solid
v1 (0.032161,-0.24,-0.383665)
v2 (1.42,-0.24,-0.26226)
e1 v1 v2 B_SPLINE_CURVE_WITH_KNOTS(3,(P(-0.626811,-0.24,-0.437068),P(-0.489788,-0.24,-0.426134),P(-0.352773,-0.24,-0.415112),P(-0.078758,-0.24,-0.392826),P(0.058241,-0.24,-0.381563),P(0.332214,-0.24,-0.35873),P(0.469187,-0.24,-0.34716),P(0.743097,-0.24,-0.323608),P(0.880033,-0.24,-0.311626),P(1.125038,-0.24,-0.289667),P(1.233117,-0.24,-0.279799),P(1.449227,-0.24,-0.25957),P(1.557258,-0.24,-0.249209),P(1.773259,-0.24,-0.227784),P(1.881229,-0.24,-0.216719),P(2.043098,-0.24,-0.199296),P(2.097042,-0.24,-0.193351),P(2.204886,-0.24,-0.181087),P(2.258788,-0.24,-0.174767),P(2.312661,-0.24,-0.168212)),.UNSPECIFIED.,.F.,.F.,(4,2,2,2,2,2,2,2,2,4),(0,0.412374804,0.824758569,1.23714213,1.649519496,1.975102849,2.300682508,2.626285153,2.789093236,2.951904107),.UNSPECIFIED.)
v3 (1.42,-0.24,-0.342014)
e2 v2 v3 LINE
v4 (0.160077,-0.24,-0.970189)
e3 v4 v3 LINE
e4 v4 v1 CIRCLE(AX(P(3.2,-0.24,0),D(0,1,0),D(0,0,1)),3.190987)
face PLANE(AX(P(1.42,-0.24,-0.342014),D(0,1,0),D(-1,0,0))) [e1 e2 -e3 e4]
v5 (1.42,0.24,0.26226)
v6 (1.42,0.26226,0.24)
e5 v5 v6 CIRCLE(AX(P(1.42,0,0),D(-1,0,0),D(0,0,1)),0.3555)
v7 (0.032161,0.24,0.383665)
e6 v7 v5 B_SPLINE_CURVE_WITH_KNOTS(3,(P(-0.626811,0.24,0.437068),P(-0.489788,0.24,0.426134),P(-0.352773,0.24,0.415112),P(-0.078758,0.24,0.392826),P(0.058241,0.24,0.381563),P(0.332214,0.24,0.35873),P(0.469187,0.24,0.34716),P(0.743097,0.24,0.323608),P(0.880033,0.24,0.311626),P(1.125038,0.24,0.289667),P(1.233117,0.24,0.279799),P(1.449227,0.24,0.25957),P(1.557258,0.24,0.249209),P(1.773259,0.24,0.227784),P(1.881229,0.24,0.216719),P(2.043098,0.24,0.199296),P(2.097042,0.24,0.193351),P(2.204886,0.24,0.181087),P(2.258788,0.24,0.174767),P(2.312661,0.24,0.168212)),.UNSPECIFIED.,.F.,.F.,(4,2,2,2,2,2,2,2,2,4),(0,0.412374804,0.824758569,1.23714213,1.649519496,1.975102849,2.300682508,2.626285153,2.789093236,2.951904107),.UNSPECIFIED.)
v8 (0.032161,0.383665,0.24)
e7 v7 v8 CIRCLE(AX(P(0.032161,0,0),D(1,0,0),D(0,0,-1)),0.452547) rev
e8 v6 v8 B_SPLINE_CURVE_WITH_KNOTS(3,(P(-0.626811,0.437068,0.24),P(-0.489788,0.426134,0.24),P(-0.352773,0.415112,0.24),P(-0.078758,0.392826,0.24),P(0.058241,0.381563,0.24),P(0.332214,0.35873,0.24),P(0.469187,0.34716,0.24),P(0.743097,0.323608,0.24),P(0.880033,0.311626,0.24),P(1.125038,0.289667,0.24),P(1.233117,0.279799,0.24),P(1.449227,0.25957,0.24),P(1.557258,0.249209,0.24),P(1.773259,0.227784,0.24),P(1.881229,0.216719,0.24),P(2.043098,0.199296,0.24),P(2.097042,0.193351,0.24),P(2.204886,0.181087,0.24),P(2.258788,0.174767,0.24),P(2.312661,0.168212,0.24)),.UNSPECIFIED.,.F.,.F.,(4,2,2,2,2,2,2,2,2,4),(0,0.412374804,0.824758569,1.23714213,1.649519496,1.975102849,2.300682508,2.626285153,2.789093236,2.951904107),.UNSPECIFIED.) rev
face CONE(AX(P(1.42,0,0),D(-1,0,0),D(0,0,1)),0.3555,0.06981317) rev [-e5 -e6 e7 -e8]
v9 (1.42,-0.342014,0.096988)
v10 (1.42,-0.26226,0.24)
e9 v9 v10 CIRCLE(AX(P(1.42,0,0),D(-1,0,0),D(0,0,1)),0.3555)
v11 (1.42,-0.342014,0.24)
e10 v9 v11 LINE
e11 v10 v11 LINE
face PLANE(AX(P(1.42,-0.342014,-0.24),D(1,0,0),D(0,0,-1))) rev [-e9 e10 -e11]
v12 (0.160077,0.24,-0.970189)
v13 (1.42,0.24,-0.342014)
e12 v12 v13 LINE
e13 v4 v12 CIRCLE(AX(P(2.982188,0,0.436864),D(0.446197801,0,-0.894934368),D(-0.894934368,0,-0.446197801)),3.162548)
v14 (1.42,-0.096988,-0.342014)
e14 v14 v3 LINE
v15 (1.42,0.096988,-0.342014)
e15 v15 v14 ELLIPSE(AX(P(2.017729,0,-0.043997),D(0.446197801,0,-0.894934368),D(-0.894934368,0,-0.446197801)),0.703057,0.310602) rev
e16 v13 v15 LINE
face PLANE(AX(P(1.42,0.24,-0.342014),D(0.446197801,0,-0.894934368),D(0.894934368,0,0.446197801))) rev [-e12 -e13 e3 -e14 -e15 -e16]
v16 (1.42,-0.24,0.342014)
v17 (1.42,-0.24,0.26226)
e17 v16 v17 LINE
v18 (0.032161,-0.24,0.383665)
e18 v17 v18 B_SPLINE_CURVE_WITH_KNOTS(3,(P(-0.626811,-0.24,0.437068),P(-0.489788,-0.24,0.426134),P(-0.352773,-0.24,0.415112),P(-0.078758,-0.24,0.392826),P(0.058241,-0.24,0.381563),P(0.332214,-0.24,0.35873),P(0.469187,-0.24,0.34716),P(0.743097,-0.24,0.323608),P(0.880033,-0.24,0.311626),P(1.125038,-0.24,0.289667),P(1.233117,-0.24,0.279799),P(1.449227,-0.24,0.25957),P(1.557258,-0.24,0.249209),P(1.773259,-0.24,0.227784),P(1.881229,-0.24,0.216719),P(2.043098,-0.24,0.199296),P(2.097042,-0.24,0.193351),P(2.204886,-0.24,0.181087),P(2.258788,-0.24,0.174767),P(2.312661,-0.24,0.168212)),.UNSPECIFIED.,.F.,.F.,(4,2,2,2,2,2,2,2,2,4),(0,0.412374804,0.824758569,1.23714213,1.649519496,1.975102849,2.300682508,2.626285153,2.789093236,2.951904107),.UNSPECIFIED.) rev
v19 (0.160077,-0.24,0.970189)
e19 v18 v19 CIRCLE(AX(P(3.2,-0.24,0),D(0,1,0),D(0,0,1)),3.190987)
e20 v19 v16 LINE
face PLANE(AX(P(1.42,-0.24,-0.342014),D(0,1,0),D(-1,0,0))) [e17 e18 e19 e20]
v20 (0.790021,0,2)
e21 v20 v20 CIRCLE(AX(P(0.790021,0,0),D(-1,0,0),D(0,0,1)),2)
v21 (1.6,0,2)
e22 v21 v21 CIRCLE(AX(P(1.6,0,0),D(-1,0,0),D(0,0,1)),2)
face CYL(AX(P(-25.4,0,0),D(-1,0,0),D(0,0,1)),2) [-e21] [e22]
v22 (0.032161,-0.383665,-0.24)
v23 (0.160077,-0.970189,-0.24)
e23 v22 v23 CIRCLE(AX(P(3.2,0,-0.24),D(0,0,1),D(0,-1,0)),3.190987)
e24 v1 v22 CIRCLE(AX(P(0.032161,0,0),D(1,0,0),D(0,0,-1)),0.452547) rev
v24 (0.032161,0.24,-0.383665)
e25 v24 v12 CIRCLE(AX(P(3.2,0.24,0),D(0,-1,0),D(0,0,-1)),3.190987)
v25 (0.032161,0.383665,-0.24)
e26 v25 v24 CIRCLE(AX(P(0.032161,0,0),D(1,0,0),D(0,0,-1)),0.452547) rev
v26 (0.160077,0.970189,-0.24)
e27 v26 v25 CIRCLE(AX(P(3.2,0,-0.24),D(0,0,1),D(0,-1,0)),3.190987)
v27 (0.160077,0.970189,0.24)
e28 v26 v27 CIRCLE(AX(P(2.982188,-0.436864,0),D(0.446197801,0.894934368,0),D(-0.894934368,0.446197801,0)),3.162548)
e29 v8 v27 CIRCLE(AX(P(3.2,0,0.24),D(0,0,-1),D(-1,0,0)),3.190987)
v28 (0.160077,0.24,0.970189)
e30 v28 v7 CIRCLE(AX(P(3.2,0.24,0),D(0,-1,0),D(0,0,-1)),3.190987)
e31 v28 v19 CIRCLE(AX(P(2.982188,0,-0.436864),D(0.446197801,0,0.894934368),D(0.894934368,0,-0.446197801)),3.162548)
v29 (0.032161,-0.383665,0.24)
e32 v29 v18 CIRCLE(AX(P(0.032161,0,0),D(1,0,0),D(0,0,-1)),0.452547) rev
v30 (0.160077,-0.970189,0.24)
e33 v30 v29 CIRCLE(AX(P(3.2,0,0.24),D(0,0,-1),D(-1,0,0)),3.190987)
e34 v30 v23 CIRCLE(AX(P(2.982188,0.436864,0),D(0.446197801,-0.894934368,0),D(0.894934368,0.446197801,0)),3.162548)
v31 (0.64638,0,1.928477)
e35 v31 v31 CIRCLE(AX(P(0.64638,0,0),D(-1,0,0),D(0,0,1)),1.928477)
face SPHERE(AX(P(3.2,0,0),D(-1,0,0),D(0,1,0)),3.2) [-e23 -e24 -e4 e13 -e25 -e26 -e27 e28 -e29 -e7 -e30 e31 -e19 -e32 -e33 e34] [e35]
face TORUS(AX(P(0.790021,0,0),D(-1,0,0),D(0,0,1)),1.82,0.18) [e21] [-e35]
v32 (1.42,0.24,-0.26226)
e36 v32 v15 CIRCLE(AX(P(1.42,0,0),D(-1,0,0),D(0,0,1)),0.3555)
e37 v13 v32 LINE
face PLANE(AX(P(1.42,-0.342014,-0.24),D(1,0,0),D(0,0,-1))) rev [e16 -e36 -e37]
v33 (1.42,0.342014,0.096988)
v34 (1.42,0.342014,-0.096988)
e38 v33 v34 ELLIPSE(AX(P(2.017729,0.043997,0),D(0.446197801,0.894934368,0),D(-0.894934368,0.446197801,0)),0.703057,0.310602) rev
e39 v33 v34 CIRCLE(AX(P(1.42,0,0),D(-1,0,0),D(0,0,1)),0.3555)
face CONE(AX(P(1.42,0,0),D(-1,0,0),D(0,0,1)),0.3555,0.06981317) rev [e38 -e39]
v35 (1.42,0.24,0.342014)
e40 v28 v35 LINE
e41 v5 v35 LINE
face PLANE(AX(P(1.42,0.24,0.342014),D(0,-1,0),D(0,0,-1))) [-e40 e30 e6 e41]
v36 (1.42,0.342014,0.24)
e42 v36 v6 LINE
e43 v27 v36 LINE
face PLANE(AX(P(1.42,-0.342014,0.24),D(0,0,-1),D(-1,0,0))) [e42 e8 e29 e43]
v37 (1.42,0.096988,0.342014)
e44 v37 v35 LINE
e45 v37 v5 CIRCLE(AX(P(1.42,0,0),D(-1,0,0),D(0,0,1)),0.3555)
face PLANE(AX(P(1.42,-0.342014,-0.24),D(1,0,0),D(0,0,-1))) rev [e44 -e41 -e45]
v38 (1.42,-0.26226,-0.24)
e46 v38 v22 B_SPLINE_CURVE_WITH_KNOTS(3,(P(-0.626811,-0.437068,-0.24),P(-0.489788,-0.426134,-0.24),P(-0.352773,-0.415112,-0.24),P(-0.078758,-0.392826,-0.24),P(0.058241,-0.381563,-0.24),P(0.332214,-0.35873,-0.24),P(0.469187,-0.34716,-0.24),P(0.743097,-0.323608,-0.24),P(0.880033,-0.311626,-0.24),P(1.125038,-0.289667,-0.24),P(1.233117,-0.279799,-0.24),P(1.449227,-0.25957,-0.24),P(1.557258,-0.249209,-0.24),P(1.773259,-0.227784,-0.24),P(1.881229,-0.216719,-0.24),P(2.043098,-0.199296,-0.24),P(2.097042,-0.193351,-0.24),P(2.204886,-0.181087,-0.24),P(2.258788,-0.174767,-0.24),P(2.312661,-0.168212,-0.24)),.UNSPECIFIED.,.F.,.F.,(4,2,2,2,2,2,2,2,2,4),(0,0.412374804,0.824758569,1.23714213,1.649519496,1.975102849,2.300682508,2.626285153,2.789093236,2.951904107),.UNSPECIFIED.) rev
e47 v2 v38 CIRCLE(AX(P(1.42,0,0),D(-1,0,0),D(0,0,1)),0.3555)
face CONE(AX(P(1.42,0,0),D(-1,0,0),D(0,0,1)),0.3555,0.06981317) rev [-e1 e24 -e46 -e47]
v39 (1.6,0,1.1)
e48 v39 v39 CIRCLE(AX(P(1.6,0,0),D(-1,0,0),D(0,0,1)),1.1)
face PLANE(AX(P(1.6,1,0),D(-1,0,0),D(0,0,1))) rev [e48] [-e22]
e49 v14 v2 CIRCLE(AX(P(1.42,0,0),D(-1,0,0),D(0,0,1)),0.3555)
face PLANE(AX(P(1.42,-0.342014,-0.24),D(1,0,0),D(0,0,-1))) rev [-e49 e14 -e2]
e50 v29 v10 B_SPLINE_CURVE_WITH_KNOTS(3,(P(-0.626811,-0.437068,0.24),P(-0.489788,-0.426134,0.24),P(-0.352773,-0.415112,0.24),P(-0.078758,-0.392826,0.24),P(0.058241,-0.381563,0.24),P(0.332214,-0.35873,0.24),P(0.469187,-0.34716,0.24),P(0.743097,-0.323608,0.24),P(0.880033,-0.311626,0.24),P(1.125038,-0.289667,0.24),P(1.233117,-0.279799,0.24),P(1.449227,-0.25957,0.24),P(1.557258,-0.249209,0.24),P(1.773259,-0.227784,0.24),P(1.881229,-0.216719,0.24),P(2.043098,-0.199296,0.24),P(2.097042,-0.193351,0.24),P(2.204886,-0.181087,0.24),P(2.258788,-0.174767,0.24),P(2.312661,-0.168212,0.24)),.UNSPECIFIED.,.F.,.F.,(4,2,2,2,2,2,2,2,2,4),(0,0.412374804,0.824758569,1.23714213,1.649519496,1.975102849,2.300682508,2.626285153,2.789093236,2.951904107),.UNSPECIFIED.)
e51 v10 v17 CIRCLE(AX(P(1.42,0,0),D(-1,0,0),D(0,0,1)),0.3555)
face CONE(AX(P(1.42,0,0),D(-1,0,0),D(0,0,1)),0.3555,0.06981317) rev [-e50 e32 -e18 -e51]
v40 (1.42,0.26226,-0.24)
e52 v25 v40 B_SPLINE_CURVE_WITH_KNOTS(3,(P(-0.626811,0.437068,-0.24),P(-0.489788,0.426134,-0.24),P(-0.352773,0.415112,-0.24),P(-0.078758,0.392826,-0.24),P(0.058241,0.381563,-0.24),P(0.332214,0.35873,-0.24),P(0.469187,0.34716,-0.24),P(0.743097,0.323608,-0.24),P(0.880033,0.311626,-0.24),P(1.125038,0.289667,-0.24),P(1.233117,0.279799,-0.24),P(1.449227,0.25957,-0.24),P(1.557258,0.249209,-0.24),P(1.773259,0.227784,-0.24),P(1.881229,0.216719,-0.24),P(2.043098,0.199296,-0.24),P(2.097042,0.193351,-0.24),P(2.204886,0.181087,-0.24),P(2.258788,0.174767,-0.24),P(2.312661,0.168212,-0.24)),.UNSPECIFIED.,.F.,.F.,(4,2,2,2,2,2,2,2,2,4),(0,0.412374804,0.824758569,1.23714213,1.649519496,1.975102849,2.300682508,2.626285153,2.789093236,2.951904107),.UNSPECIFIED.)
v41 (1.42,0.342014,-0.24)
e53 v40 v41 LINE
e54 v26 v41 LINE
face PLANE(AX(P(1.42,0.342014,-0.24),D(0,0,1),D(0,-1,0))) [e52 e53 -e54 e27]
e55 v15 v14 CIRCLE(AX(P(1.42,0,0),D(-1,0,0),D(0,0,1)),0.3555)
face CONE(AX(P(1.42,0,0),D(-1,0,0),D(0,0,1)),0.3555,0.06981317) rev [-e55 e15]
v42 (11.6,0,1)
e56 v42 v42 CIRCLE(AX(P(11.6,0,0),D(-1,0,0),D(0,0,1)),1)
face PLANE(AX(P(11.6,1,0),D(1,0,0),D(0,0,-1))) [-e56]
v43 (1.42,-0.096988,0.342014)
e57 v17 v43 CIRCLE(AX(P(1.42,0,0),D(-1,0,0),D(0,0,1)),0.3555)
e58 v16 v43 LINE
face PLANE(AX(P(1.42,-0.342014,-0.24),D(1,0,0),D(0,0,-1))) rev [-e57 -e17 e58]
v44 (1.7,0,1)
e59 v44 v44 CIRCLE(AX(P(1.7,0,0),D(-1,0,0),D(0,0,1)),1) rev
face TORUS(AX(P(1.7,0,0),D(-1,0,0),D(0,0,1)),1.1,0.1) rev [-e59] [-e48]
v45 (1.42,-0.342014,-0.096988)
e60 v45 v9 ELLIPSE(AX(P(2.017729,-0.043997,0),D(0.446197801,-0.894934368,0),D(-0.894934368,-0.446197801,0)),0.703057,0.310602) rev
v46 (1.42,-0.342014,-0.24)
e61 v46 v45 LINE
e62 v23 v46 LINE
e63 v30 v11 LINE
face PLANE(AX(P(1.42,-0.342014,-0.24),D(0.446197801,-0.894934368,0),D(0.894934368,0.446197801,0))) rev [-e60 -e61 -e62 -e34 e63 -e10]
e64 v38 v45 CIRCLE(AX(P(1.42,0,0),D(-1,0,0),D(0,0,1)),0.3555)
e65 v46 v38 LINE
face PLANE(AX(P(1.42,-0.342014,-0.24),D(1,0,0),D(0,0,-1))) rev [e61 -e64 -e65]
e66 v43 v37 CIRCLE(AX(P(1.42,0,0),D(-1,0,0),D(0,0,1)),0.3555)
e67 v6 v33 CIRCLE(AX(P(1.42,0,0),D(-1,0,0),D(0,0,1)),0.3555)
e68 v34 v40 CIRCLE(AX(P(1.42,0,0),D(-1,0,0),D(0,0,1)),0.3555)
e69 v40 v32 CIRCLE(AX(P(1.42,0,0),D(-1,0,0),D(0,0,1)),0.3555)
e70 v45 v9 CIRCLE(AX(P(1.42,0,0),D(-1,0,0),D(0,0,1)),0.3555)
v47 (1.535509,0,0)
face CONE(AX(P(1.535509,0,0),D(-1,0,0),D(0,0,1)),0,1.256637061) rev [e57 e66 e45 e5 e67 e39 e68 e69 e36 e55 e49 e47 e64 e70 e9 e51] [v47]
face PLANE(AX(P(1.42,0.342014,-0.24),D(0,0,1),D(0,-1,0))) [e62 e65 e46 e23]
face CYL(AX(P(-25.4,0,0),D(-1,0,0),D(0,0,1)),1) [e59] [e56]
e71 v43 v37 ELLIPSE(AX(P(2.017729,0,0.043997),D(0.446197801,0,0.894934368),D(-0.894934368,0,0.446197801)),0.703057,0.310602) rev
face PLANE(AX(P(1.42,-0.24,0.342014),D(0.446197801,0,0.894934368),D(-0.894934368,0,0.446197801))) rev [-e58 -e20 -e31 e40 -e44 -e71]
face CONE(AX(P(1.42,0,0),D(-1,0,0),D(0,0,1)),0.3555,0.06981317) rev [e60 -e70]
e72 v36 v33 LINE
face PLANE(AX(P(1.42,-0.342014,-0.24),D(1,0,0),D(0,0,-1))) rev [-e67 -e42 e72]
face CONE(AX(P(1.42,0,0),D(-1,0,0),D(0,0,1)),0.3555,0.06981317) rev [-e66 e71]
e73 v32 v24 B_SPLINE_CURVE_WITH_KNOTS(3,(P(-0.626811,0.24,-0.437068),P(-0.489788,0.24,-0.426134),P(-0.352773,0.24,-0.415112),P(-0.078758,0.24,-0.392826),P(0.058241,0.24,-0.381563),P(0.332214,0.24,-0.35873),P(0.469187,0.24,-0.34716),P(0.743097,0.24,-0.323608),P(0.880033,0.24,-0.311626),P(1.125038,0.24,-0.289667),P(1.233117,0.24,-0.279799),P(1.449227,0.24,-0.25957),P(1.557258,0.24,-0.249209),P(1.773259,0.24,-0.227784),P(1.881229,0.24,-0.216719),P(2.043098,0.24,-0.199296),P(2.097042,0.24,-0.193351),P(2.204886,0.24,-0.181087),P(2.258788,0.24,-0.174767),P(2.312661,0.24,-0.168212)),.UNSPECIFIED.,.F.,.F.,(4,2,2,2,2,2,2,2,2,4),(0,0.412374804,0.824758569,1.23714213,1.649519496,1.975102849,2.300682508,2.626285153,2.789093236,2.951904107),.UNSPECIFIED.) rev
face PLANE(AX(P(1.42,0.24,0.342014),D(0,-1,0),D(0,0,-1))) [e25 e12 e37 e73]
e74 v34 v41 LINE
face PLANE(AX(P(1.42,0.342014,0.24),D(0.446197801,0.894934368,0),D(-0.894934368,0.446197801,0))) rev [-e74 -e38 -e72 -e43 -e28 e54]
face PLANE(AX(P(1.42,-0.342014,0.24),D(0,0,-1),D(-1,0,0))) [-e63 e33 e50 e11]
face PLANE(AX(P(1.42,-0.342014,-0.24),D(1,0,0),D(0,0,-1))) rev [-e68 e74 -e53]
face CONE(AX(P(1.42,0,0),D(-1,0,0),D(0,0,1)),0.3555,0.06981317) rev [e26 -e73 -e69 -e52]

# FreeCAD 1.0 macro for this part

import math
import FreeCAD as App
import Part
import Sketcher

V = App.Vector
Q = App.Units.Quantity


def edges_at(feature, points):
    """Names of the edges that pass closest to the given points."""
    edges = feature.Shape.Edges
    near = lambda p: min(range(len(edges)), key=lambda i: edges[i].distToShape(Part.Vertex(*p))[0])
    return sorted({f"Edge{near(p) + 1}" for p in points})

doc = App.newDocument("Part")
body = doc.addObject("PartDesign::Body", "Body")

# Sketch on XY plane
sketch1 = doc.addObject("Sketcher::SketchObject", "Sketch")
body.addObject(sketch1)
sketch1.AttachmentSupport = (doc.XY_Plane, [""])
sketch1.MapMode = "FlatFace"
sketch1.addGeometry(Part.LineSegment(V(1.6, 1, 0), V(1.6, 2, 0)), False)
sketch1.addGeometry(Part.LineSegment(V(1.6, 2, 0), V(0.79, 2, 0)), False)
sketch1.addGeometry(Part.ArcOfCircle(Part.Circle(V(0.79, 1.82, 0), V(0, 0, 1), 0.18), math.radians(90), math.radians(143)), False)
sketch1.addGeometry(Part.ArcOfCircle(Part.Circle(V(3.2, 0, 0), V(0, 0, 1), 3.2), math.radians(143), math.radians(180)), False)
sketch1.addGeometry(Part.LineSegment(V(0, 0, 0), V(11.6, 0, 0)), False)
sketch1.addGeometry(Part.LineSegment(V(11.6, 0, 0), V(11.6, 1, 0)), False)
sketch1.addGeometry(Part.LineSegment(V(11.6, 1, 0), V(1.6, 1, 0)), False)
sketch1.addConstraint(Sketcher.Constraint("Coincident", 0, 2, 1, 1))
sketch1.addConstraint(Sketcher.Constraint("Tangent", 1, 2, 2, 1))
sketch1.addConstraint(Sketcher.Constraint("Tangent", 2, 2, 3, 1))
sketch1.addConstraint(Sketcher.Constraint("Coincident", 3, 2, 4, 1))
sketch1.addConstraint(Sketcher.Constraint("Coincident", 4, 2, 5, 1))
sketch1.addConstraint(Sketcher.Constraint("Coincident", 5, 2, 6, 1))
sketch1.addConstraint(Sketcher.Constraint("Coincident", 6, 2, 0, 1))
sketch1.addConstraint(Sketcher.Constraint("Vertical", 0))
sketch1.addConstraint(Sketcher.Constraint("Horizontal", 1))
sketch1.addConstraint(Sketcher.Constraint("Horizontal", 4))
sketch1.addConstraint(Sketcher.Constraint("Vertical", 5))
sketch1.addConstraint(Sketcher.Constraint("Horizontal", 6))
sketch1.addConstraint(Sketcher.Constraint("Coincident", 3, 2, -1, 1))
sketch1.addConstraint(Sketcher.Constraint("PointOnObject", 3, 3, -1))
sketch1.addConstraint(Sketcher.Constraint("Equal", 0, 5))
sketch1.addConstraint(Sketcher.Constraint("Radius", 3, 3.2))
sketch1.addConstraint(Sketcher.Constraint("DistanceX", 6, 2, 6, 1, 10.0))
sketch1.addConstraint(Sketcher.Constraint("DistanceY", 0, 1, 0, 2, 1.0))
sketch1.addConstraint(Sketcher.Constraint("Radius", 2, 0.18))
sketch1.addConstraint(Sketcher.Constraint("DistanceX", 4, 1, 4, 2, 11.6))
revolution = doc.addObject("PartDesign::Revolution", "Revolution")
body.addObject(revolution)
revolution.Profile = sketch1
revolution.ReferenceAxis = (sketch1, ["H_Axis"])
revolution.Angle = 360
doc.recompute()

fillet = doc.addObject("PartDesign::Fillet", "Fillet")
body.addObject(fillet)
fillet.Base = (revolution, edges_at(revolution, [(1.6, 0, -1)]))
fillet.Radius = 0.1

# Sketch on YZ plane
sketch2 = doc.addObject("Sketcher::SketchObject", "Sketch001")
body.addObject(sketch2)
sketch2.AttachmentSupport = (doc.YZ_Plane, [""])
sketch2.MapMode = "FlatFace"
sketch2.addGeometry(Part.LineSegment(V(-1.05, 0.24, 0), V(-1.05, -0.24, 0)), False)
sketch2.addGeometry(Part.LineSegment(V(-1.05, -0.24, 0), V(1.05, -0.24, 0)), False)
sketch2.addGeometry(Part.LineSegment(V(1.05, -0.24, 0), V(1.05, 0.24, 0)), False)
sketch2.addGeometry(Part.LineSegment(V(1.05, 0.24, 0), V(-1.05, 0.24, 0)), False)
sketch2.addConstraint(Sketcher.Constraint("Coincident", 0, 2, 1, 1))
sketch2.addConstraint(Sketcher.Constraint("Coincident", 1, 2, 2, 1))
sketch2.addConstraint(Sketcher.Constraint("Coincident", 2, 2, 3, 1))
sketch2.addConstraint(Sketcher.Constraint("Coincident", 3, 2, 0, 1))
sketch2.addConstraint(Sketcher.Constraint("Vertical", 0))
sketch2.addConstraint(Sketcher.Constraint("Horizontal", 1))
sketch2.addConstraint(Sketcher.Constraint("Vertical", 2))
sketch2.addConstraint(Sketcher.Constraint("Horizontal", 3))
sketch2.addConstraint(Sketcher.Constraint("Symmetric", 0, 2, 2, 2, -1, 1))
sketch2.addConstraint(Sketcher.Constraint("DistanceX", 1, 1, 1, 2, 2.1))
sketch2.addConstraint(Sketcher.Constraint("DistanceY", 0, 2, 0, 1, 0.48))

# Sketch on YZ plane
sketch3 = doc.addObject("Sketcher::SketchObject", "Sketch002")
body.addObject(sketch3)
sketch3.AttachmentSupport = (doc.YZ_Plane, [""])
sketch3.MapMode = "FlatFace"
sketch3.AttachmentOffset = App.Placement(V(0, 0, 1.42), App.Rotation())
sketch3.addGeometry(Part.LineSegment(V(-0.34, 0.24, 0), V(-0.34, -0.24, 0)), False)
sketch3.addGeometry(Part.LineSegment(V(-0.34, -0.24, 0), V(0.34, -0.24, 0)), False)
sketch3.addGeometry(Part.LineSegment(V(0.34, -0.24, 0), V(0.34, 0.24, 0)), False)
sketch3.addGeometry(Part.LineSegment(V(0.34, 0.24, 0), V(-0.34, 0.24, 0)), False)
sketch3.addConstraint(Sketcher.Constraint("Coincident", 0, 2, 1, 1))
sketch3.addConstraint(Sketcher.Constraint("Coincident", 1, 2, 2, 1))
sketch3.addConstraint(Sketcher.Constraint("Coincident", 2, 2, 3, 1))
sketch3.addConstraint(Sketcher.Constraint("Coincident", 3, 2, 0, 1))
sketch3.addConstraint(Sketcher.Constraint("Vertical", 0))
sketch3.addConstraint(Sketcher.Constraint("Horizontal", 1))
sketch3.addConstraint(Sketcher.Constraint("Vertical", 2))
sketch3.addConstraint(Sketcher.Constraint("Horizontal", 3))
sketch3.addConstraint(Sketcher.Constraint("Symmetric", 0, 2, 2, 2, -1, 1))
sketch3.addConstraint(Sketcher.Constraint("DistanceY", 0, 2, 0, 1, 0.48))
sketch3.addConstraint(Sketcher.Constraint("DistanceX", 1, 1, 1, 2, 0.684028))

subtractiveloft = doc.addObject("PartDesign::SubtractiveLoft", "SubtractiveLoft")
body.addObject(subtractiveloft)
subtractiveloft.Profile = sketch2
subtractiveloft.Sections = [sketch3]
doc.recompute()

polarpattern = doc.addObject("PartDesign::PolarPattern", "PolarPattern")
body.addObject(polarpattern)
polarpattern.Originals = [subtractiveloft]
polarpattern.Axis = (doc.X_Axis, [""])
polarpattern.Angle = 90
polarpattern.Occurrences = 2
body.Tip = polarpattern

# Sketch on XY plane
sketch4 = doc.addObject("Sketcher::SketchObject", "Sketch003")
body.addObject(sketch4)
sketch4.AttachmentSupport = (doc.XY_Plane, [""])
sketch4.MapMode = "FlatFace"
sketch4.addGeometry(Part.LineSegment(V(0, 0.45, 0), V(0, 0, 0)), False)
sketch4.addGeometry(Part.LineSegment(V(0, 0, 0), V(1.54, 0, 0)), False)
sketch4.addGeometry(Part.LineSegment(V(1.54, 0, 0), V(1.42, 0.36, 0)), False)
sketch4.addGeometry(Part.LineSegment(V(1.42, 0.36, 0), V(0, 0.45, 0)), False)
sketch4.addConstraint(Sketcher.Constraint("Coincident", 0, 2, 1, 1))
sketch4.addConstraint(Sketcher.Constraint("Coincident", 1, 2, 2, 1))
sketch4.addConstraint(Sketcher.Constraint("Coincident", 2, 2, 3, 1))
sketch4.addConstraint(Sketcher.Constraint("Coincident", 3, 2, 0, 1))
sketch4.addConstraint(Sketcher.Constraint("Vertical", 0))
sketch4.addConstraint(Sketcher.Constraint("Horizontal", 1))
sketch4.addConstraint(Sketcher.Constraint("Coincident", 0, 2, -1, 1))
sketch4.addConstraint(Sketcher.Constraint("Angle", 2, Q("108 deg")))
sketch4.addConstraint(Sketcher.Constraint("Angle", 3, Q("176 deg")))
sketch4.addConstraint(Sketcher.Constraint("DistanceX", -1, 1, 2, 2, 1.42))
sketch4.addConstraint(Sketcher.Constraint("DistanceX", 1, 1, 1, 2, 1.535509))
groove = doc.addObject("PartDesign::Groove", "Groove")
body.addObject(groove)
groove.Profile = sketch4
groove.ReferenceAxis = (sketch4, ["H_Axis"])
groove.Angle = 360

doc.recompute()
